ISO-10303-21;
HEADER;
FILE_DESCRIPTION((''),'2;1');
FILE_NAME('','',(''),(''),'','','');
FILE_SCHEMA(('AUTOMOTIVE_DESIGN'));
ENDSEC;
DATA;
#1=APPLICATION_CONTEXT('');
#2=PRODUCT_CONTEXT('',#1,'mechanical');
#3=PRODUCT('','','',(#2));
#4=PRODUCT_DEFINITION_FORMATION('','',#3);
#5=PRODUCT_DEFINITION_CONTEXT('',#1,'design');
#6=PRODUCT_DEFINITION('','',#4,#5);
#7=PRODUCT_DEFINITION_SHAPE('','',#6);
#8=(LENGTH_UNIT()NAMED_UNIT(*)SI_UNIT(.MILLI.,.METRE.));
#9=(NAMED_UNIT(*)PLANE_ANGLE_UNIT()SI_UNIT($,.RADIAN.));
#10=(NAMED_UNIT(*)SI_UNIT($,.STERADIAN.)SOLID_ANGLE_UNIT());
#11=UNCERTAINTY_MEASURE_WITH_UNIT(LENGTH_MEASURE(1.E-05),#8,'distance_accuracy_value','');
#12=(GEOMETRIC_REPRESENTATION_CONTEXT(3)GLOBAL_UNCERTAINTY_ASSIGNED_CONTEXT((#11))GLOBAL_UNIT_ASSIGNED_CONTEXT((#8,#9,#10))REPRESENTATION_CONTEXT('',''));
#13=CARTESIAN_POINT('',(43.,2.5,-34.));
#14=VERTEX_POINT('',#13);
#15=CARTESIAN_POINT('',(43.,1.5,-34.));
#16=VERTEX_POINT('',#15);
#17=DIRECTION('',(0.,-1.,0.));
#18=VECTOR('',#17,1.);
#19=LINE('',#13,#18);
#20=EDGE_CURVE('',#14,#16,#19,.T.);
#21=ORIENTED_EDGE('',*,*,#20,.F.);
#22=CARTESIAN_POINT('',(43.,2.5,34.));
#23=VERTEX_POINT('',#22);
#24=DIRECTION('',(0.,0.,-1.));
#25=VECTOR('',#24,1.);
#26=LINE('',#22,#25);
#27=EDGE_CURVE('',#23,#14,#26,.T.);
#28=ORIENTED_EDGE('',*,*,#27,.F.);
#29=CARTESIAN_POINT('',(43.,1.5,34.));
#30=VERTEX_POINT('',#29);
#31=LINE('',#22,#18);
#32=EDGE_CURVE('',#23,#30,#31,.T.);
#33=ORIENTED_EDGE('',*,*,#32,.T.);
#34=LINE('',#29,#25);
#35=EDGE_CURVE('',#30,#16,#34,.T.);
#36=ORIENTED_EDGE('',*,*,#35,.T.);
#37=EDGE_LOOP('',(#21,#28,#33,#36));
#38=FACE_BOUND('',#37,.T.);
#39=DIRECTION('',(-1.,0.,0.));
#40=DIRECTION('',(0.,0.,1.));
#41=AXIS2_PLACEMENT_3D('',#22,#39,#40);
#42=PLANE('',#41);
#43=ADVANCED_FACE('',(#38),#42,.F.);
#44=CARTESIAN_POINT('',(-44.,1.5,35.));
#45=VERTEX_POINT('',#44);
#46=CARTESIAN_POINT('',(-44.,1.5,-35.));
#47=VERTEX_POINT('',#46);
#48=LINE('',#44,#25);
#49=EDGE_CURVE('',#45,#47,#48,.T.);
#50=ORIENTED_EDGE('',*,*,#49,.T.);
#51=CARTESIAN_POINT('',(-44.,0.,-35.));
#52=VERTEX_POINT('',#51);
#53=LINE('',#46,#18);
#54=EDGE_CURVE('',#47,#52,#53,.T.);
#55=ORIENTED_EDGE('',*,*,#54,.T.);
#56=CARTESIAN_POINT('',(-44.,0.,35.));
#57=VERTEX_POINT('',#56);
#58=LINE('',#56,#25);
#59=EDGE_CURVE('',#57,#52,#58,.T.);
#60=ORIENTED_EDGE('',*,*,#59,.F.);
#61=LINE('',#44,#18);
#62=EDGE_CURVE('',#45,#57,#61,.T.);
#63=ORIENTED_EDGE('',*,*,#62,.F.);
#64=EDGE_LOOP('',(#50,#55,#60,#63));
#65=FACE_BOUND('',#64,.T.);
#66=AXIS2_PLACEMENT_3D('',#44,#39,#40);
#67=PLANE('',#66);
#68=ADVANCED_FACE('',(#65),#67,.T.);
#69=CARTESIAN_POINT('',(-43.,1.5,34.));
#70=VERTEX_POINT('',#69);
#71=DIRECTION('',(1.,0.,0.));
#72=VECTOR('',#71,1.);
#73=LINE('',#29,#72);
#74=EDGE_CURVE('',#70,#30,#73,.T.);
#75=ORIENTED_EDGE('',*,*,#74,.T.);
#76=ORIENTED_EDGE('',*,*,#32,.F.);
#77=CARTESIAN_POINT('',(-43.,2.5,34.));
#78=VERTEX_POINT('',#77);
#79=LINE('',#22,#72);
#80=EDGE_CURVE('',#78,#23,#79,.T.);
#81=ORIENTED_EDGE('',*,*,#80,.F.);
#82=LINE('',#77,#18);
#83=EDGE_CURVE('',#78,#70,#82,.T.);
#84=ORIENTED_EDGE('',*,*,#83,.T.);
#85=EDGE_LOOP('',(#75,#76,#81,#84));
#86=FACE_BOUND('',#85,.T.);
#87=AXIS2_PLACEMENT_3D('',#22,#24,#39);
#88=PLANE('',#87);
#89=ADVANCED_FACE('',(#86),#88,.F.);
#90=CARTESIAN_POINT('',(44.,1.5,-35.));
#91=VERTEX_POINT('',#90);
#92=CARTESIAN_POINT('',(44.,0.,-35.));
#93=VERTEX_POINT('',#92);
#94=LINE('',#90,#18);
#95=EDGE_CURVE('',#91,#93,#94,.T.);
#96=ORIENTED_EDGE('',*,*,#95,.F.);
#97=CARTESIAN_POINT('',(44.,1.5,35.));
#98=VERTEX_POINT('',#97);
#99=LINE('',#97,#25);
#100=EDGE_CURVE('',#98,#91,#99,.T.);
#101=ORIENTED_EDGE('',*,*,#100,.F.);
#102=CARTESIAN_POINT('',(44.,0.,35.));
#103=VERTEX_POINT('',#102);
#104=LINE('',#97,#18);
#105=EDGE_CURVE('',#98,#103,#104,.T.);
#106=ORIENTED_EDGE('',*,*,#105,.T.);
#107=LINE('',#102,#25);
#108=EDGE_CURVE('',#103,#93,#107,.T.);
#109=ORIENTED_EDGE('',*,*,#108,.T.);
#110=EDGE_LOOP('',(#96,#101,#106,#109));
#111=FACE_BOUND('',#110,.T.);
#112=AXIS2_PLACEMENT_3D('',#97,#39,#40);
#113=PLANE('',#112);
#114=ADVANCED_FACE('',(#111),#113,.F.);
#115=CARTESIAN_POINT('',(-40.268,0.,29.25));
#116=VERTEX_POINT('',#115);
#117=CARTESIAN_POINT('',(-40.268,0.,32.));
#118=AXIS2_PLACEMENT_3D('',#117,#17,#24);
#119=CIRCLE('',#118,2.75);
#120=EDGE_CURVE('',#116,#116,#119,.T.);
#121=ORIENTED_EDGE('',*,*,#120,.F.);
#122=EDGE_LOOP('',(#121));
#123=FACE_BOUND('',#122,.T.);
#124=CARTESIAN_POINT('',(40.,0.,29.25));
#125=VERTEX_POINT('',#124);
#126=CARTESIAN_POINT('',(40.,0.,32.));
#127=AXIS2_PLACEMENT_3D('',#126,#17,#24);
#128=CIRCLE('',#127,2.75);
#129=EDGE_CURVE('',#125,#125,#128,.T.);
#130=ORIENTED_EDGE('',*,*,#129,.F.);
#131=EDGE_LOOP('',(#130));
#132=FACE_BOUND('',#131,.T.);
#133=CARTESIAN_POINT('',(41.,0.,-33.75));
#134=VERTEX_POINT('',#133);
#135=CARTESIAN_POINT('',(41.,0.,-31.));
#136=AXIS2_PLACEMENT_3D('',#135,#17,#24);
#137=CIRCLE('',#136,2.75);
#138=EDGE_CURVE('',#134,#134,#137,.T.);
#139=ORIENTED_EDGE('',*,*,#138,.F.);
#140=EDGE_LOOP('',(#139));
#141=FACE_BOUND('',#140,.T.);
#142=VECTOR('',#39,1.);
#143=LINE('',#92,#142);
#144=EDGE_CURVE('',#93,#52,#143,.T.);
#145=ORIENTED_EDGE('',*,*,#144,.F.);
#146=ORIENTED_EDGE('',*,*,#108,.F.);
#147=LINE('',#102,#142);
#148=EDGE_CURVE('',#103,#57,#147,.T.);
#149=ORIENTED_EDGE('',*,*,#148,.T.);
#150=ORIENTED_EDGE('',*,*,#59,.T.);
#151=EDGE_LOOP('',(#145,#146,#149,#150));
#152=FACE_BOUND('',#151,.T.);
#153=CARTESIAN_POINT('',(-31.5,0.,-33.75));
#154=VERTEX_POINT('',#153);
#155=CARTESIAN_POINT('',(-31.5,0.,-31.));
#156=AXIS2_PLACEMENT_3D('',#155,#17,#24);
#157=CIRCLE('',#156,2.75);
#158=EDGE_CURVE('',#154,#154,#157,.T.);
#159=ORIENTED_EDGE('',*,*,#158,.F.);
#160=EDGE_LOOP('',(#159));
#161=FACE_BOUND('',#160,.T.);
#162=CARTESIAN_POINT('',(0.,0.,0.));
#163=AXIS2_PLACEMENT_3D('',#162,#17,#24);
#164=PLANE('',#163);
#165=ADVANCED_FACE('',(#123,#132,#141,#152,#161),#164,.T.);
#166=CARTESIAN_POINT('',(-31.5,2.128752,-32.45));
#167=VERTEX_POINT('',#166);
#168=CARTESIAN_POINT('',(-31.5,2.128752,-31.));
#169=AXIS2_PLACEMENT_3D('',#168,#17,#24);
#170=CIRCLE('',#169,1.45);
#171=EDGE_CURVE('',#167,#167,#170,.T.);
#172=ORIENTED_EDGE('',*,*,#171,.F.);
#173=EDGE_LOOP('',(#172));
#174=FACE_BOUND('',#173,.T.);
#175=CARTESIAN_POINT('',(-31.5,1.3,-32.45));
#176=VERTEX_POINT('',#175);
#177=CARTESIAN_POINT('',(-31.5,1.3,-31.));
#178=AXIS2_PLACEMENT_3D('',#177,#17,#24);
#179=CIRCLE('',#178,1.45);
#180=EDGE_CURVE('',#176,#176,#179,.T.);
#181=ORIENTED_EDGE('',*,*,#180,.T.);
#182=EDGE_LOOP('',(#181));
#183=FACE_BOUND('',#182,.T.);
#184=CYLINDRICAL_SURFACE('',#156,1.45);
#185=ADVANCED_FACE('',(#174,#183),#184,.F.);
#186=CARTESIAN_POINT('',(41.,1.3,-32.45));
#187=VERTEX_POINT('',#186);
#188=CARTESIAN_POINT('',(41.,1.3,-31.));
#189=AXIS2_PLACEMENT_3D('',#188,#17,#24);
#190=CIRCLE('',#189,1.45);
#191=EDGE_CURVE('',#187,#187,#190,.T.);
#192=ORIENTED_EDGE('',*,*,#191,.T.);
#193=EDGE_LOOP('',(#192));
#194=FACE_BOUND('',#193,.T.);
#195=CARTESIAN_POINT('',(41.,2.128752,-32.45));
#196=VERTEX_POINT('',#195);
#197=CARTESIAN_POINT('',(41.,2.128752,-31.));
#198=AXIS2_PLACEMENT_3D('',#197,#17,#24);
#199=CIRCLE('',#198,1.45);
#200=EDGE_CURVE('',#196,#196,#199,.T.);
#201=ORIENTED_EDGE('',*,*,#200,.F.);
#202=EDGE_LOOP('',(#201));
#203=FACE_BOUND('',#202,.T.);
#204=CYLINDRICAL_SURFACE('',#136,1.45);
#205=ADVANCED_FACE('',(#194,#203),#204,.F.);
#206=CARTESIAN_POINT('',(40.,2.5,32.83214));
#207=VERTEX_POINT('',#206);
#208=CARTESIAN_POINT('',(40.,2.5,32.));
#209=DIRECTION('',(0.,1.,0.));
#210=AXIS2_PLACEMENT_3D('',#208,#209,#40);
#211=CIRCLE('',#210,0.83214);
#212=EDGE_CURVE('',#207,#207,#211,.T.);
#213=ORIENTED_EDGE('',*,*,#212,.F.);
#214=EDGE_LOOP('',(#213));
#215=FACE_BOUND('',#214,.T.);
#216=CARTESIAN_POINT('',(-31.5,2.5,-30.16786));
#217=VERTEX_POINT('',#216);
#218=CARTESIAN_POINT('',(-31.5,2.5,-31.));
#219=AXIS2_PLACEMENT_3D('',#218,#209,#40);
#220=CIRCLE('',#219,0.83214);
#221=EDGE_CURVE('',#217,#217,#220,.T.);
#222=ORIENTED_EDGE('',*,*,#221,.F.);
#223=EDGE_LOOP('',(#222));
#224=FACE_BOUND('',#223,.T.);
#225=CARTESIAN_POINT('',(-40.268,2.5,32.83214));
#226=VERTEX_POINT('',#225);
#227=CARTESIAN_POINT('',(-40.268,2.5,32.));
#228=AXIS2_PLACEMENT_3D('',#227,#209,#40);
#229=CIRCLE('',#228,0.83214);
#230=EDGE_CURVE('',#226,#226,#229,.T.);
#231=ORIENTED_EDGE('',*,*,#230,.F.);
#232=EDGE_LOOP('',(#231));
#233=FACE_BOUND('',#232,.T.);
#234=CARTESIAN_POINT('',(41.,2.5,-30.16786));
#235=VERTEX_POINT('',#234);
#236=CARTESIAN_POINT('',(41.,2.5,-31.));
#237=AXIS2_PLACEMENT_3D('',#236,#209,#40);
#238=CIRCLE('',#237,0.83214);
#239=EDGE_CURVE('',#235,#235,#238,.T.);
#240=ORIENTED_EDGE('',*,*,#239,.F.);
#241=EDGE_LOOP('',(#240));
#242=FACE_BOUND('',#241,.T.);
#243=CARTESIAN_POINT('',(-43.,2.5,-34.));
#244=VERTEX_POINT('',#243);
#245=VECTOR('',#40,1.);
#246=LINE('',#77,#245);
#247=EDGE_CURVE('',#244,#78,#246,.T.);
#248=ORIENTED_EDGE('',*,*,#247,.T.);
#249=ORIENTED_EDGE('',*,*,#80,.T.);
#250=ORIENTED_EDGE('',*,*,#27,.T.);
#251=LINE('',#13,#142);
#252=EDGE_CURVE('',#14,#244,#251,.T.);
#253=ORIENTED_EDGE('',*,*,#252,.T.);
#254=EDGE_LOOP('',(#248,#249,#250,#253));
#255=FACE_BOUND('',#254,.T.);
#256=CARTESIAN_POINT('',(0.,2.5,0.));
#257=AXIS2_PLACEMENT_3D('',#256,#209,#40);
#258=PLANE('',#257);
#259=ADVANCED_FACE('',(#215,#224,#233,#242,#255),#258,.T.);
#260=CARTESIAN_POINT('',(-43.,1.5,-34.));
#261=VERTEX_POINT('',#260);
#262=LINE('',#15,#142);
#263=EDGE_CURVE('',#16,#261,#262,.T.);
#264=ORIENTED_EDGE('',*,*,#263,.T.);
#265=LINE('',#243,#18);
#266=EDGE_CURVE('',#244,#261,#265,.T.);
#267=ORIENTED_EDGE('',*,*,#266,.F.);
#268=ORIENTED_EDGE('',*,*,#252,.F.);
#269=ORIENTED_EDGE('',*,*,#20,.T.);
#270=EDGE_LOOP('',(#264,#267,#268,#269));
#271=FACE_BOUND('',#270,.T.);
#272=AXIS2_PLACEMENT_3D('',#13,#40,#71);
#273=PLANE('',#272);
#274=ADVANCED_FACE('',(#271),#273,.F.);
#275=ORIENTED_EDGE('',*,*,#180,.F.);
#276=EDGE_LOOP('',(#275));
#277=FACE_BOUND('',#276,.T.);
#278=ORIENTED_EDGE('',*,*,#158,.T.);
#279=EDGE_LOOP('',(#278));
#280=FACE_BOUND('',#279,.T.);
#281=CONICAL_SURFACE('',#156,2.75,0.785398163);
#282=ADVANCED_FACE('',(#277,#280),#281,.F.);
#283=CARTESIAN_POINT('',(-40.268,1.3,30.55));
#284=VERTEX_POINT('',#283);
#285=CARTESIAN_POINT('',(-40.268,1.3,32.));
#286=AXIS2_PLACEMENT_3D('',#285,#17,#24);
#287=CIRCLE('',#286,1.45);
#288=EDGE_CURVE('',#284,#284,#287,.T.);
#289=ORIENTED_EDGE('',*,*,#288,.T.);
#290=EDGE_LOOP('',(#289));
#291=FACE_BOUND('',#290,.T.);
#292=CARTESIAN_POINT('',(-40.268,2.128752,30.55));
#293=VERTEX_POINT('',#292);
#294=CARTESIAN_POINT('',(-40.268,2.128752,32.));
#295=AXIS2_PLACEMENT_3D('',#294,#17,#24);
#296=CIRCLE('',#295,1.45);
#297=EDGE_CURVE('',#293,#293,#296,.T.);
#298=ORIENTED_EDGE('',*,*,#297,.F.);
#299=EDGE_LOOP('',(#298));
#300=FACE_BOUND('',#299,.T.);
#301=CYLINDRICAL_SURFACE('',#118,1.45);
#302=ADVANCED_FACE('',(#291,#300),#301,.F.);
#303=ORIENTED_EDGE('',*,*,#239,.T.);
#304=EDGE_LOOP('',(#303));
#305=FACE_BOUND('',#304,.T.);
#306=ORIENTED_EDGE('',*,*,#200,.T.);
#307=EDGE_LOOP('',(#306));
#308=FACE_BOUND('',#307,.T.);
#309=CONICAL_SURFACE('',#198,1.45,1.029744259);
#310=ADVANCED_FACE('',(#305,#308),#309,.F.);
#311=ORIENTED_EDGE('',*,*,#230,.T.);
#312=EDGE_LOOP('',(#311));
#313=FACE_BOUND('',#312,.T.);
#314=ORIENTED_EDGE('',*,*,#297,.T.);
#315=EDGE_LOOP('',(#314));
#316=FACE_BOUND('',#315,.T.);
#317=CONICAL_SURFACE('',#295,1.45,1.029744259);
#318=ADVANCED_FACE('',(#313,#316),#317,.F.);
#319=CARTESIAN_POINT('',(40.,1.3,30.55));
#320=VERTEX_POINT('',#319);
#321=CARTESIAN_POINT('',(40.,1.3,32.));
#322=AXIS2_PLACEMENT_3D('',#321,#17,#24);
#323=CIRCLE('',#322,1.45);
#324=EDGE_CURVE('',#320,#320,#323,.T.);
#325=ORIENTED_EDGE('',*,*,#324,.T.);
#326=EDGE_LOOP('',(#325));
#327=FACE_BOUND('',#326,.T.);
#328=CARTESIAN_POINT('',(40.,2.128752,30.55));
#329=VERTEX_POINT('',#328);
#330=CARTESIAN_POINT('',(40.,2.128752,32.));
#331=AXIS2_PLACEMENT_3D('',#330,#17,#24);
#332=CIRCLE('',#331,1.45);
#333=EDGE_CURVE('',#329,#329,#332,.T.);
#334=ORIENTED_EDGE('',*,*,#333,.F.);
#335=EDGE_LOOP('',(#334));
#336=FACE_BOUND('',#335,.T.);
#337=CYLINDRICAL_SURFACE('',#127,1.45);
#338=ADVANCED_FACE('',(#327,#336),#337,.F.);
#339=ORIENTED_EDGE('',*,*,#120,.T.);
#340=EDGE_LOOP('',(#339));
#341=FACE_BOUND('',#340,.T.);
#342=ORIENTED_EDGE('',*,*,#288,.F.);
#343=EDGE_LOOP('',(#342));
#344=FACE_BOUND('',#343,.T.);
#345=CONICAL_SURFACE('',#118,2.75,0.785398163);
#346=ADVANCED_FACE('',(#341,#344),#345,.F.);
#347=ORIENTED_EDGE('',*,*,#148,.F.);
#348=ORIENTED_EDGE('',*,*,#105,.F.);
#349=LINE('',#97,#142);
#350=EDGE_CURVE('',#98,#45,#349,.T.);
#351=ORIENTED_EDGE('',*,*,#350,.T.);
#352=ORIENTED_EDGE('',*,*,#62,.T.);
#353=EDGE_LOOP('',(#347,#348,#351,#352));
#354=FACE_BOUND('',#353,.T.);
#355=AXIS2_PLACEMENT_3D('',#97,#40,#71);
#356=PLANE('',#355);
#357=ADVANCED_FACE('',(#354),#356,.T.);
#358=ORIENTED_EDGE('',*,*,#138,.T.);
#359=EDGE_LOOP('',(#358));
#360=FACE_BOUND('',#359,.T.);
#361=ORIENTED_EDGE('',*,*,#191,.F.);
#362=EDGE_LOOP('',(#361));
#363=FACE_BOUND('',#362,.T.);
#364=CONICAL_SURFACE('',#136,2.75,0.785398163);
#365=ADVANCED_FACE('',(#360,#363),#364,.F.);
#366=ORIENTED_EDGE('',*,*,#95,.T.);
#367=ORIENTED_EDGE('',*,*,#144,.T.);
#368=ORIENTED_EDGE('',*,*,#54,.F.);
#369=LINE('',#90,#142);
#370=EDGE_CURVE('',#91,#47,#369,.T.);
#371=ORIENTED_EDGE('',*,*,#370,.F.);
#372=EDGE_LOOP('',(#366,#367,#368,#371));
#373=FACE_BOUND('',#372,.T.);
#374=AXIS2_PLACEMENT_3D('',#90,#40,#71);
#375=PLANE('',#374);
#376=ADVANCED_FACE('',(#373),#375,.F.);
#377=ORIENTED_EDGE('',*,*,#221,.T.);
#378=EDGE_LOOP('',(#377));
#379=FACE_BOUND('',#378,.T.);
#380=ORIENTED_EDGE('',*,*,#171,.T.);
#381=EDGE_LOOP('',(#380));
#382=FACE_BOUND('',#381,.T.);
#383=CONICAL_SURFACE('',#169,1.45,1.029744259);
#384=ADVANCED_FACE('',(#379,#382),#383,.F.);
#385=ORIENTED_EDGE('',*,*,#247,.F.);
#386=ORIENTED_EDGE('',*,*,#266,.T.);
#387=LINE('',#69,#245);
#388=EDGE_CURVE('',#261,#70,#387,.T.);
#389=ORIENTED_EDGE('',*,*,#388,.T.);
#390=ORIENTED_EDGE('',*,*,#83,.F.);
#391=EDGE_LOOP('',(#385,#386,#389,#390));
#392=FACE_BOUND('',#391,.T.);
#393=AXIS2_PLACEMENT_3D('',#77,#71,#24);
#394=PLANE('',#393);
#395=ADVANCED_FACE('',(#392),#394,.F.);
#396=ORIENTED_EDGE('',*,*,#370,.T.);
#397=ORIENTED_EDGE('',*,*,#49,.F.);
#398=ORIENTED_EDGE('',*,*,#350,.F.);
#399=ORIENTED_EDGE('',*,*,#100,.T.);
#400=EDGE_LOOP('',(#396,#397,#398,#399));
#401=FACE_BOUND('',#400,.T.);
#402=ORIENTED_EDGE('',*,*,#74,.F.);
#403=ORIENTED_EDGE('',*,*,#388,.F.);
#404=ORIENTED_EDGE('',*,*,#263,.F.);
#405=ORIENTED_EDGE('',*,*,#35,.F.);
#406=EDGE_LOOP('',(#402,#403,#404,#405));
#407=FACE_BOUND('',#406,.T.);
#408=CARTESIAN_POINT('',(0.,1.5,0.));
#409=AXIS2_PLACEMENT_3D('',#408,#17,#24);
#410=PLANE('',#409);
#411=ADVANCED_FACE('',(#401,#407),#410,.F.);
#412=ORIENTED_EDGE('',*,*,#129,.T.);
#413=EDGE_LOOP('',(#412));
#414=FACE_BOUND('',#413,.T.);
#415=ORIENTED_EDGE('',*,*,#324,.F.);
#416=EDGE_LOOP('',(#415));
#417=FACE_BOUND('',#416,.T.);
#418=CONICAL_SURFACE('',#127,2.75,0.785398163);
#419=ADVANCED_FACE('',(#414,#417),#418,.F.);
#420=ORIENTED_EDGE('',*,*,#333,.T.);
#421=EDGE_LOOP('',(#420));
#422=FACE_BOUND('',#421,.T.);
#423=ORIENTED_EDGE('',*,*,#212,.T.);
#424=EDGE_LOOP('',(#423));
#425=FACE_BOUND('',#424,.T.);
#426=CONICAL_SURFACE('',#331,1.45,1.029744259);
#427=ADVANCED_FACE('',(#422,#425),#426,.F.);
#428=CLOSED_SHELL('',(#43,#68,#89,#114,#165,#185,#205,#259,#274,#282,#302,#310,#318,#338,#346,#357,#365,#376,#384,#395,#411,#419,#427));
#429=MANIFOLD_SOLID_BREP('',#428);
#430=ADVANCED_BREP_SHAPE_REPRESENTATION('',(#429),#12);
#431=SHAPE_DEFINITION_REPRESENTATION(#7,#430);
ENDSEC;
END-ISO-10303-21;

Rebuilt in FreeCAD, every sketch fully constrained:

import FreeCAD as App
import Part
import Sketcher
from FreeCAD import Vector

doc = App.newDocument("Part")
body = doc.addObject("PartDesign::Body", "Body")

# Sketch on XZ plane
sketch1 = body.newObject("Sketcher::SketchObject", "Sketch")
sketch1.AttachmentSupport = (doc.getObject("XZ_Plane"), [""])
sketch1.MapMode = "FlatFace"
sketch1.addGeometry([
    Part.LineSegment(Vector(-44, -35, 0), Vector(-44, 35, 0)),
    Part.LineSegment(Vector(-44, 35, 0), Vector(44, 35, 0)),
    Part.LineSegment(Vector(44, 35, 0), Vector(44, -35, 0)),
    Part.LineSegment(Vector(44, -35, 0), Vector(-44, -35, 0)),
], False)
sketch1.addConstraint([
    Sketcher.Constraint("Coincident", 0, 2, 1, 1),
    Sketcher.Constraint("Coincident", 1, 2, 2, 1),
    Sketcher.Constraint("Coincident", 2, 2, 3, 1),
    Sketcher.Constraint("Coincident", 3, 2, 0, 1),
    Sketcher.Constraint("Vertical", 0),
    Sketcher.Constraint("Horizontal", 1),
    Sketcher.Constraint("Vertical", 2),
    Sketcher.Constraint("Horizontal", 3),
    Sketcher.Constraint("Symmetric", 0, 2, 2, 2, -1, 1),
    Sketcher.Constraint("DistanceX", 1, 1, 1, 2, 88.0),
    Sketcher.Constraint("DistanceY", 0, 1, 0, 2, 70.0),
])
pad1 = body.newObject("PartDesign::Pad", "Pad")
pad1.Profile = sketch1
pad1.Length = 1.5
pad1.Reversed = True

# Sketch on XZ plane
sketch2 = body.newObject("Sketcher::SketchObject", "Sketch001")
sketch2.AttachmentSupport = (doc.getObject("XZ_Plane"), [""])
sketch2.MapMode = "FlatFace"
sketch2.AttachmentOffset = App.Placement(Vector(0, 0, -1.5), App.Rotation())
sketch2.addGeometry([
    Part.LineSegment(Vector(-43, -34, 0), Vector(-43, 34, 0)),
    Part.LineSegment(Vector(-43, 34, 0), Vector(43, 34, 0)),
    Part.LineSegment(Vector(43, 34, 0), Vector(43, -34, 0)),
    Part.LineSegment(Vector(43, -34, 0), Vector(-43, -34, 0)),
], False)
sketch2.addConstraint([
    Sketcher.Constraint("Coincident", 0, 2, 1, 1),
    Sketcher.Constraint("Coincident", 1, 2, 2, 1),
    Sketcher.Constraint("Coincident", 2, 2, 3, 1),
    Sketcher.Constraint("Coincident", 3, 2, 0, 1),
    Sketcher.Constraint("Vertical", 0),
    Sketcher.Constraint("Horizontal", 1),
    Sketcher.Constraint("Vertical", 2),
    Sketcher.Constraint("Horizontal", 3),
    Sketcher.Constraint("Symmetric", 0, 2, 2, 2, -1, 1),
    Sketcher.Constraint("DistanceX", 1, 1, 1, 2, 86.0),
    Sketcher.Constraint("DistanceY", 0, 1, 0, 2, 68.0),
])
pad2 = body.newObject("PartDesign::Pad", "Pad001")
pad2.Profile = sketch2
pad2.Length = 1
pad2.Reversed = True

# Sketch on XZ plane
sketch3 = body.newObject("Sketcher::SketchObject", "Sketch002")
sketch3.AttachmentSupport = (doc.getObject("XZ_Plane"), [""])
sketch3.MapMode = "FlatFace"
sketch3.addGeometry([
    Part.Circle(Vector(40, 32, 0), Vector(0, 0, 1), 1.4),
    Part.Circle(Vector(41, -31, 0), Vector(0, 0, 1), 1.4),
    Part.Circle(Vector(-31.5, -31, 0), Vector(0, 0, 1), 1.4),
    Part.Circle(Vector(-40.3, 32, 0), Vector(0, 0, 1), 1.4),
], False)
sketch3.addConstraint([
    Sketcher.Constraint("Equal", 0, 1),
    Sketcher.Constraint("Equal", 1, 2),
    Sketcher.Constraint("Equal", 2, 3),
    Sketcher.Constraint("Horizontal", 1, 3, 2, 3),
    Sketcher.Constraint("Horizontal", 0, 3, 3, 3),
    Sketcher.Constraint("Diameter", 0, 2.9),
    Sketcher.Constraint("DistanceX", -1, 1, 0, 3, 40.0),
    Sketcher.Constraint("DistanceY", -1, 1, 0, 3, 32.0),
    Sketcher.Constraint("DistanceX", -1, 1, 1, 3, 41.0),
    Sketcher.Constraint("DistanceY", 1, 3, -1, 1, 31.0),
    Sketcher.Constraint("DistanceX", 2, 3, -1, 1, 31.5),
    Sketcher.Constraint("DistanceX", 3, 3, -1, 1, 40.268),
])
doc.recompute()
hole = body.newObject("PartDesign::Hole", "Hole")
hole.Profile = sketch3
hole.ThreadType = "None"
hole.Diameter = 2.9
hole.DepthType = "Dimension"
hole.Depth = 2.128752
hole.DrillPoint = "Angled"
hole.DrillPointAngle = 118
hole.HoleCutType = "Countersink"
hole.HoleCutDiameter = 5.5
hole.HoleCutCountersinkAngle = 90

doc.recompute()
